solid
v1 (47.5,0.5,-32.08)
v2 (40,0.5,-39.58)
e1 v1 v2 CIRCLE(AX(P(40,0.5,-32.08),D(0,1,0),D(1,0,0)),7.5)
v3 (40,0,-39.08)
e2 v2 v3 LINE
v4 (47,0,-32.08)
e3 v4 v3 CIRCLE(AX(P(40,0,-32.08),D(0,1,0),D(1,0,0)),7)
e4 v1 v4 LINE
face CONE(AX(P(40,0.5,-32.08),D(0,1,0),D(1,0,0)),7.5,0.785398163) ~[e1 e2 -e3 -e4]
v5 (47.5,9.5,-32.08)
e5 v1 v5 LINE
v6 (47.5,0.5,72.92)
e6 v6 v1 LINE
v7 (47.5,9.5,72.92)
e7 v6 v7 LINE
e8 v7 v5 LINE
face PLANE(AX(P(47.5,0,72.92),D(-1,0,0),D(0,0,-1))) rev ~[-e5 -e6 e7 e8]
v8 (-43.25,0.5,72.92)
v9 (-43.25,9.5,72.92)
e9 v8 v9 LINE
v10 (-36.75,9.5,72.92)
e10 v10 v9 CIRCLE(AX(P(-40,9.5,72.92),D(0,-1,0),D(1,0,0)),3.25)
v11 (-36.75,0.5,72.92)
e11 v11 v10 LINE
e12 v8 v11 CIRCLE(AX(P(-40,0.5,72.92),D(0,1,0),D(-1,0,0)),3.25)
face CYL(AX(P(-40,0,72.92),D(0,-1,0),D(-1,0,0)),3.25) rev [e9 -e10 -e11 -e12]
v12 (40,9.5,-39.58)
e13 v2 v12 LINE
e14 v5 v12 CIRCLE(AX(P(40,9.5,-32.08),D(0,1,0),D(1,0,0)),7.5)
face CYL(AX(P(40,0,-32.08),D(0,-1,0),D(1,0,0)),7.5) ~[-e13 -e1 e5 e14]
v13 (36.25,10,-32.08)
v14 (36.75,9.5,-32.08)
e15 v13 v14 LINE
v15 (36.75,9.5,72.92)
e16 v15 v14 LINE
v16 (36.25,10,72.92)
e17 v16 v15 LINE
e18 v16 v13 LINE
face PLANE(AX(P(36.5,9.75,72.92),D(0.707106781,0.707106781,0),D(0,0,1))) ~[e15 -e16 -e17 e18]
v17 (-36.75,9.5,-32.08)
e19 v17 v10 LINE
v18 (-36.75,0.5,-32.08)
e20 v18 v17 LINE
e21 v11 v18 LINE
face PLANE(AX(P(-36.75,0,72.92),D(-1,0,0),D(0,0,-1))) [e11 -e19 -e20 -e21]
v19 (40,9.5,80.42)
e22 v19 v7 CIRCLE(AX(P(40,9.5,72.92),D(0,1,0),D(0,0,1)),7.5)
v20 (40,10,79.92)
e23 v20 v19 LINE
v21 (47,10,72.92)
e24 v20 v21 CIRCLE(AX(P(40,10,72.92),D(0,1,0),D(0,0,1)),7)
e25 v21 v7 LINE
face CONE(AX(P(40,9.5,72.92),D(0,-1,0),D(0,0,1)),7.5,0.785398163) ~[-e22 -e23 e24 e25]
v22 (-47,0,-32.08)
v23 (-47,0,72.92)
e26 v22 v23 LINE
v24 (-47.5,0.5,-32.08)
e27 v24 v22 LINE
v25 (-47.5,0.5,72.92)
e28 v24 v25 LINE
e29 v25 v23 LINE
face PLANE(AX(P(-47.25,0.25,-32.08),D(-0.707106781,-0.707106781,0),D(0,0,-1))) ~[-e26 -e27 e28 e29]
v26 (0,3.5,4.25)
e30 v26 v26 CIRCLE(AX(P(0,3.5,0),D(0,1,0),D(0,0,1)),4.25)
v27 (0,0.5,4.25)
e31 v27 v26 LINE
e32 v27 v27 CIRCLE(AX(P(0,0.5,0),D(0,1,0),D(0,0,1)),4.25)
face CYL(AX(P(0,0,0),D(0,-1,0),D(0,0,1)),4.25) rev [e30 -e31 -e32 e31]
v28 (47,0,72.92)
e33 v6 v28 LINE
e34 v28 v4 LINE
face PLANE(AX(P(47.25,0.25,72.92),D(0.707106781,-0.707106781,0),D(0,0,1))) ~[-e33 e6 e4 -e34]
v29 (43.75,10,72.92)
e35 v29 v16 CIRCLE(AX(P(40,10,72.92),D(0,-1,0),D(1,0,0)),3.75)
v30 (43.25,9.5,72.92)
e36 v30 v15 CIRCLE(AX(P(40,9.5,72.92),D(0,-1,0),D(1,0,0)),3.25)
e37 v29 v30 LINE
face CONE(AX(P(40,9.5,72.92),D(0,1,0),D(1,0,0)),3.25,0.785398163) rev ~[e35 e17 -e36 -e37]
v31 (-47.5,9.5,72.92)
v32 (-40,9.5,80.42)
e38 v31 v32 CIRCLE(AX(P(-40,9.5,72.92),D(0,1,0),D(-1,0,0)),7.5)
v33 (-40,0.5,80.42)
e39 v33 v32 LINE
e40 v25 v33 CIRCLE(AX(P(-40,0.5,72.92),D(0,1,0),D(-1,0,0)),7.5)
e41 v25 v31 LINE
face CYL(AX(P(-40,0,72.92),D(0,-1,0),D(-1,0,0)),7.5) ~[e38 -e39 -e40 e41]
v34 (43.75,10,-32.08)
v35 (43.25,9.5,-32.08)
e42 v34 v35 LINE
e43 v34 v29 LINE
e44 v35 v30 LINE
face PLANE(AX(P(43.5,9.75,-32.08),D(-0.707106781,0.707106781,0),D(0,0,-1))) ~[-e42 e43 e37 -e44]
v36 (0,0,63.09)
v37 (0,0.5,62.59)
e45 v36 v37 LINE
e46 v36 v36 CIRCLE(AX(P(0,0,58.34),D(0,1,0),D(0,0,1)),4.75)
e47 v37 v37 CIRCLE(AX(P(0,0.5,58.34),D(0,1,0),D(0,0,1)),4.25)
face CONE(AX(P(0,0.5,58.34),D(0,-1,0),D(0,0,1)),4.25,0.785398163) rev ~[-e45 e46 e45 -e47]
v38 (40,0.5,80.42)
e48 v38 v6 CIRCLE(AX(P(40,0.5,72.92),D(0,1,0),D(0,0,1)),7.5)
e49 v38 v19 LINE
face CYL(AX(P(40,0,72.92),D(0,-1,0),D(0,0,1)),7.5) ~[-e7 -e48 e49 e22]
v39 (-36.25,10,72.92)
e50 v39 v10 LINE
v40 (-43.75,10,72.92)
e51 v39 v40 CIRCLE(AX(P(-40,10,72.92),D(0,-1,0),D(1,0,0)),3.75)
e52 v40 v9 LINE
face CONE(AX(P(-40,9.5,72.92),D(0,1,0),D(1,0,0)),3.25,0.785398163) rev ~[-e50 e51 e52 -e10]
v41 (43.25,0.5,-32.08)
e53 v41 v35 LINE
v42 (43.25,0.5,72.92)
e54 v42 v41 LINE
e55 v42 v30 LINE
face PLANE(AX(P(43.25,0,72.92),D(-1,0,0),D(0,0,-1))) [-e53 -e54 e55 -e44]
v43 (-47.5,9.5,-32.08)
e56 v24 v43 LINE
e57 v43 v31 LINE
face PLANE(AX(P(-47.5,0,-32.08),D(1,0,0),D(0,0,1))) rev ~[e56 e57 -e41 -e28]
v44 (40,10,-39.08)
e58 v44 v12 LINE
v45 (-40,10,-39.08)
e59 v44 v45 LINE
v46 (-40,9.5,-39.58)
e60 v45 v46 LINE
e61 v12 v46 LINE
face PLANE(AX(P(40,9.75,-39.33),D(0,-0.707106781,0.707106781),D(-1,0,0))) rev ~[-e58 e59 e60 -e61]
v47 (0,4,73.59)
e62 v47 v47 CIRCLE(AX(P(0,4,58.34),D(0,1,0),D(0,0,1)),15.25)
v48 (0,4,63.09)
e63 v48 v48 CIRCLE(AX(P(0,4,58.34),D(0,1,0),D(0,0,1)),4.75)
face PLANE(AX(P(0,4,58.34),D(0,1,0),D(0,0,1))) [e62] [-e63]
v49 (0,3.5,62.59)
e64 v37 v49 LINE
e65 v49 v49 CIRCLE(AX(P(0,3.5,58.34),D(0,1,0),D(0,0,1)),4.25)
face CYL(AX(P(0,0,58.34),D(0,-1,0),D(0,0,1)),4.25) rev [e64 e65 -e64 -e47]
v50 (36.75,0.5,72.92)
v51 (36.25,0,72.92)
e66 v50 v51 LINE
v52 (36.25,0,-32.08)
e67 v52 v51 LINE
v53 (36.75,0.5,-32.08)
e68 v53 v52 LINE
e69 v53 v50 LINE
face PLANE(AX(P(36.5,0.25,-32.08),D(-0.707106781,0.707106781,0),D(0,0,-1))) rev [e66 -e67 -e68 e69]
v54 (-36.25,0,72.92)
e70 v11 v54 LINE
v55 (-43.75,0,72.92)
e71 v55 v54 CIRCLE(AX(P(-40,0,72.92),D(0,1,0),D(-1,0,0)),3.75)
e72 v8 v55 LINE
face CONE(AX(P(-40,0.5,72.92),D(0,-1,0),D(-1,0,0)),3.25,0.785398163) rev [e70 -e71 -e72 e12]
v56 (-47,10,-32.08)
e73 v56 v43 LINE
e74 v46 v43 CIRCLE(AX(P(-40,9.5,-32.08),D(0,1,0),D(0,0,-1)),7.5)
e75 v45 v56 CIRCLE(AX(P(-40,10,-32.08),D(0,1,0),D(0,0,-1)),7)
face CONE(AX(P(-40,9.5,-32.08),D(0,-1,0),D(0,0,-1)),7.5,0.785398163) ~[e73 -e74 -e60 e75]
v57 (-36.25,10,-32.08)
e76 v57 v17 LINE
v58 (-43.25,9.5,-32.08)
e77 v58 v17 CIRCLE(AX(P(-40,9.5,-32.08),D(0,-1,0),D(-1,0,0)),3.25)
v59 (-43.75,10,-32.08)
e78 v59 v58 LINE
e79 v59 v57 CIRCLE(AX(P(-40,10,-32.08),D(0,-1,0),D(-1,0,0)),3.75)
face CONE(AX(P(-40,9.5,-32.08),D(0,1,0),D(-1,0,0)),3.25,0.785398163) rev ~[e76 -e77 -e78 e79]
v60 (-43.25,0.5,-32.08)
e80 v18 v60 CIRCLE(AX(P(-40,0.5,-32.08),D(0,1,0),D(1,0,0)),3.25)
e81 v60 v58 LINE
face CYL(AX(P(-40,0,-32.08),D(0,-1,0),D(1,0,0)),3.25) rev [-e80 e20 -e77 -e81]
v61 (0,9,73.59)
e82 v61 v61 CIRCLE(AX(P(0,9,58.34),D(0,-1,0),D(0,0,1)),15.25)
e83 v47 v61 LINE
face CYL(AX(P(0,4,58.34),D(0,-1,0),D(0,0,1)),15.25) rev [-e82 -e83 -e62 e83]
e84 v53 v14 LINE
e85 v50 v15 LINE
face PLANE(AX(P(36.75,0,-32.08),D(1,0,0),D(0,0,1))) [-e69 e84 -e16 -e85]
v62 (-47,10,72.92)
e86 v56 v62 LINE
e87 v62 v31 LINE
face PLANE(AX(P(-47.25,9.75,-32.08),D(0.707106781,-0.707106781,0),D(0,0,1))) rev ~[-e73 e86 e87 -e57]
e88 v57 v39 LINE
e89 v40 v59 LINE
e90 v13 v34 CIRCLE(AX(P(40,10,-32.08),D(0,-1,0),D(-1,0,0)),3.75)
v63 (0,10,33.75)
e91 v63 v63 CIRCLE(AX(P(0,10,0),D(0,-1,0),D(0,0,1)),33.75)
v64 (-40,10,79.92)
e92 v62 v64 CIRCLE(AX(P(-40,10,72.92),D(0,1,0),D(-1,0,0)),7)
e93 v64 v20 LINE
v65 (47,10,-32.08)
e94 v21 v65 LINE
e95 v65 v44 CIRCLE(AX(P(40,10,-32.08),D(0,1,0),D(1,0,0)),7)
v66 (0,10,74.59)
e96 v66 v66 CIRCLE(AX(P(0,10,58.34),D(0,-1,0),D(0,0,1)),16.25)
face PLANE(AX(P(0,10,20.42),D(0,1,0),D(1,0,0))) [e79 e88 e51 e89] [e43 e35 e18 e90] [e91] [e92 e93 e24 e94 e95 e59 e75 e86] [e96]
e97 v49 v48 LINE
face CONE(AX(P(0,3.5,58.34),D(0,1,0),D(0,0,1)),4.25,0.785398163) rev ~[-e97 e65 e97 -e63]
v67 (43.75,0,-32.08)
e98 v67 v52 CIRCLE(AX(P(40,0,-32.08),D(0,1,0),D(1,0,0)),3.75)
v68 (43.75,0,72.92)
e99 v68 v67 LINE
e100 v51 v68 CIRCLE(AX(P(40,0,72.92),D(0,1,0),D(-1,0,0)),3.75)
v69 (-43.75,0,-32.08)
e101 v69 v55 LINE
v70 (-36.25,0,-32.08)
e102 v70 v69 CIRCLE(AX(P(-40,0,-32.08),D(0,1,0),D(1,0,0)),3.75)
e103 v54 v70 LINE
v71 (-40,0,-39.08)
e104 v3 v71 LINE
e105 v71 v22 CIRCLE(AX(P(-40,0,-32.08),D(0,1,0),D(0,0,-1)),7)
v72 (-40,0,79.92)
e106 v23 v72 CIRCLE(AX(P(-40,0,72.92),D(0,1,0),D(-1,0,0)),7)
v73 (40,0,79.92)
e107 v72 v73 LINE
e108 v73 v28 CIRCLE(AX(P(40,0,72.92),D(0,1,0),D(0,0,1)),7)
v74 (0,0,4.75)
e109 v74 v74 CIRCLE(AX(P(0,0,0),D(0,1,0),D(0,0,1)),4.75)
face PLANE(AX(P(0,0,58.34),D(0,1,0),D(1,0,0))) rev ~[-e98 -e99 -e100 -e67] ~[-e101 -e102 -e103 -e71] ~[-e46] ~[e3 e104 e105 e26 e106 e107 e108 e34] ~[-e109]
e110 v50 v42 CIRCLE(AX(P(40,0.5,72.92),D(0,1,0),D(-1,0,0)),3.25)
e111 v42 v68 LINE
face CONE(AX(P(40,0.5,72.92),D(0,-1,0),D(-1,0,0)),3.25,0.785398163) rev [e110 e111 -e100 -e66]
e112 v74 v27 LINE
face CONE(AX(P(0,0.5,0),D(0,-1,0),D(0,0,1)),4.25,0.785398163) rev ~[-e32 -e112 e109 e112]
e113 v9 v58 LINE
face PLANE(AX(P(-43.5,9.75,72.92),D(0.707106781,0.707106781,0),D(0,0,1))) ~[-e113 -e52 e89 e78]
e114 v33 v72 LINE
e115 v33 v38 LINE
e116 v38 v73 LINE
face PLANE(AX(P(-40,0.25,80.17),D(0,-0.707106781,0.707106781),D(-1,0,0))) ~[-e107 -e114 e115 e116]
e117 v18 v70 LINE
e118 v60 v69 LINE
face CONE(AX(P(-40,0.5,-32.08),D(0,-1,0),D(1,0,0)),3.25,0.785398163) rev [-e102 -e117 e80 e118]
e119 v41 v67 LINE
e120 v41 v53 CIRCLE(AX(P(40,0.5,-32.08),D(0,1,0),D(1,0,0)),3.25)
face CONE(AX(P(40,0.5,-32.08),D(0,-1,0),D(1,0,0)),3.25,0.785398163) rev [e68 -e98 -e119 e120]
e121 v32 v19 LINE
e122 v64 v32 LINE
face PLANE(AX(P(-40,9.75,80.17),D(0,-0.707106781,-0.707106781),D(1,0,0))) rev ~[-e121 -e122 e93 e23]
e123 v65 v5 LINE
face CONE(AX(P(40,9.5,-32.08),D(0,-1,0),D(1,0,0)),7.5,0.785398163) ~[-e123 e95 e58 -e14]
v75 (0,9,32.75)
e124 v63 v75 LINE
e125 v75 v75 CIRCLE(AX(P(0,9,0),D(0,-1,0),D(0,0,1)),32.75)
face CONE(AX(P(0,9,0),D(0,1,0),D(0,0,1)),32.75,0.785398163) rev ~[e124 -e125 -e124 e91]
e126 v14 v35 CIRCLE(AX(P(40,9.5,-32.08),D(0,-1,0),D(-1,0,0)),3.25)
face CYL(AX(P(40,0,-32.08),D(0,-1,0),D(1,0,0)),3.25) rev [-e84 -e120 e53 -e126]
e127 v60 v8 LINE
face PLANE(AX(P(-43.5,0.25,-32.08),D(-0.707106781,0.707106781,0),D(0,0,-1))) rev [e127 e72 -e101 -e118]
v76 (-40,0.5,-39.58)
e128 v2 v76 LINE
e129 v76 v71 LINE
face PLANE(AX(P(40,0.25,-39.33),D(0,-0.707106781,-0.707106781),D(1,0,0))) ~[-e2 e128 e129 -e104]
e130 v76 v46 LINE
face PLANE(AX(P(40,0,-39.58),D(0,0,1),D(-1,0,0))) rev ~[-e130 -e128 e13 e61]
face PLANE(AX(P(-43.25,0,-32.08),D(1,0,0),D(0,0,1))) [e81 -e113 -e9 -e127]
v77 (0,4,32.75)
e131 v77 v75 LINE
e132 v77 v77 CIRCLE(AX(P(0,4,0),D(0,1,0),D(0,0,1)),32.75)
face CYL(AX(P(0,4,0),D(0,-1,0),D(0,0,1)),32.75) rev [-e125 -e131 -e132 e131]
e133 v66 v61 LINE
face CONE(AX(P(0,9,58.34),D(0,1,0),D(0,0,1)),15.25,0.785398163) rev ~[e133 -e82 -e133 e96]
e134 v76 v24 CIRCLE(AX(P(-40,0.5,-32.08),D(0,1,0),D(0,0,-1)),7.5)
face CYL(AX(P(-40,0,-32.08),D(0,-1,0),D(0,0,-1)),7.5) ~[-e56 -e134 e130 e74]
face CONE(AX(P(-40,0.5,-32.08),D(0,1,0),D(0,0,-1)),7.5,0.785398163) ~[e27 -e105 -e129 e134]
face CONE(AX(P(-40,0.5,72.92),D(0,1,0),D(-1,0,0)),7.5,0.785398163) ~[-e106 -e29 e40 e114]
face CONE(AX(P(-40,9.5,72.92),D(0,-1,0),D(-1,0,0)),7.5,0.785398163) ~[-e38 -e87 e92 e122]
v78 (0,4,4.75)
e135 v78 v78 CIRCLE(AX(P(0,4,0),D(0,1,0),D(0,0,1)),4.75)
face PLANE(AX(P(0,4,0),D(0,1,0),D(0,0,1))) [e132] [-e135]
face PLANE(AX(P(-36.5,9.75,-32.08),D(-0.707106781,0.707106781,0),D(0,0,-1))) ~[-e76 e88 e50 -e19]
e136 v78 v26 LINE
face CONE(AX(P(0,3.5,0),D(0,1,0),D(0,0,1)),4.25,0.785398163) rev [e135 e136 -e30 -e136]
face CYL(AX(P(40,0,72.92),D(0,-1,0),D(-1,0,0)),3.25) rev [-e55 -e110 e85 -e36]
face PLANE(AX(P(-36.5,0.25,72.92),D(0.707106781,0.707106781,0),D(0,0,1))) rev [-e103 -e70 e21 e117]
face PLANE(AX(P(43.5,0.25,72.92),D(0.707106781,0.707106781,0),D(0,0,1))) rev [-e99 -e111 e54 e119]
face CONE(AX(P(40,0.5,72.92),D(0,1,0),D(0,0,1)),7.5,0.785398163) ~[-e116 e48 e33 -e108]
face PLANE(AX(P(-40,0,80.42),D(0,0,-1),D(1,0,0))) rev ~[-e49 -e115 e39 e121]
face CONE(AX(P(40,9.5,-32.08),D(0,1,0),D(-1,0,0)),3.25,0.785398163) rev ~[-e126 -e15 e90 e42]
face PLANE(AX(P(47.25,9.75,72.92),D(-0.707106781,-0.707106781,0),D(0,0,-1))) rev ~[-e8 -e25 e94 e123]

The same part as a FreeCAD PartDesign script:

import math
import FreeCAD as App
import Part
import Sketcher
Q = App.Units.Quantity


def edges_at(feature, points):
    """Names of the edges that pass closest to the given points."""
    edges = feature.Shape.Edges
    near = lambda p: min(range(len(edges)), key=lambda i: edges[i].distToShape(Part.Vertex(*p))[0])
    return sorted({f"Edge{near(p) + 1}" for p in points})

doc = App.newDocument("Part")
params = doc.addObject("Spreadsheet::Sheet", "Params")
for row, (alias, value) in enumerate([
    ("sketch1_radius", "7.5 mm"),
    ("sketch1_width", "80 mm"),
    ("sketch1_height", "105 mm"),
    ("pad1_length", "10 mm"),
    ("sketch2_diameter", "8.5 mm"),
    ("sketch2_height", "105 mm"),
    ("sketch2_radius", "3.25 mm"),
    ("sketch3_diameter", "65.5 mm"),
    ("sketch3_diameter2", "8.5 mm"),
    ("sketch3_diameter3", "30.5 mm"),
    ("pocket2_length", "90.93416 mm"),
    ("chamfer_size", "1 mm"),
    ("chamfer2_size", "0.5 mm"),
], start=1):
    params.set(f"A{row}", alias)
    params.set(f"B{row}", "=" + value)
    params.setAlias(f"B{row}", alias)

body = doc.addObject("PartDesign::Body", "Body")

sketch1 = body.newObject("Sketcher::SketchObject", "Sketch")
sketch1.AttachmentSupport = (doc.getObject("XZ_Plane"), [""])
sketch1.MapMode = "FlatFace"
sketch1.addGeometry([
    Part.LineSegment(App.Vector(-40, 80, 0), App.Vector(40, 80, 0)),
    Part.ArcOfCircle(Part.Circle(App.Vector(40, 73, 0), App.Vector(0, 0, 1), 8), math.radians(0), math.radians(90)),
    Part.LineSegment(App.Vector(48, 73, 0), App.Vector(48, -32, 0)),
    Part.ArcOfCircle(Part.Circle(App.Vector(40, -32, 0), App.Vector(0, 0, 1), 8), math.radians(-90), math.radians(0)),
    Part.LineSegment(App.Vector(40, -40, 0), App.Vector(-40, -40, 0)),
    Part.ArcOfCircle(Part.Circle(App.Vector(-40, -32, 0), App.Vector(0, 0, 1), 8), math.radians(180), math.radians(270)),
    Part.LineSegment(App.Vector(-48, -32, 0), App.Vector(-48, 73, 0)),
    Part.ArcOfCircle(Part.Circle(App.Vector(-40, 73, 0), App.Vector(0, 0, 1), 8), math.radians(90), math.radians(180)),
], False)
sketch1.addConstraint([
    Sketcher.Constraint("Tangent", 0, 2, 1, 2),
    Sketcher.Constraint("Tangent", 1, 1, 2, 1),
    Sketcher.Constraint("Tangent", 2, 2, 3, 2),
    Sketcher.Constraint("Tangent", 3, 1, 4, 1),
    Sketcher.Constraint("Tangent", 4, 2, 5, 2),
    Sketcher.Constraint("Tangent", 5, 1, 6, 1),
    Sketcher.Constraint("Tangent", 6, 2, 7, 2),
    Sketcher.Constraint("Tangent", 7, 1, 0, 1),
    Sketcher.Constraint("Horizontal", 0),
    Sketcher.Constraint("Vertical", 2),
    Sketcher.Constraint("Horizontal", 4),
    Sketcher.Constraint("Vertical", 6),
    Sketcher.Constraint("Equal", 1, 3),
    Sketcher.Constraint("Equal", 3, 5),
    Sketcher.Constraint("Equal", 5, 7),
    Sketcher.Constraint("Radius", 1, Q("7.5 mm")),
    Sketcher.Constraint("DistanceX", 0, 1, 0, 2, Q("80 mm")),
    Sketcher.Constraint("DistanceY", 2, 2, 2, 1, Q("105 mm")),
    Sketcher.Constraint("DistanceX", -1, 1, 1, 3, Q("40 mm")),
    Sketcher.Constraint("DistanceY", -1, 1, 1, 3, Q("72.92 mm")),
])
sketch1.setExpression("Constraints[15]", "Params.sketch1_radius")
sketch1.setExpression("Constraints[16]", "Params.sketch1_width")
sketch1.setExpression("Constraints[17]", "Params.sketch1_height")
pad1 = body.newObject("PartDesign::Pad", "Pad")
pad1.Profile = sketch1
pad1.setExpression("Length", "Params.pad1_length")
pad1.Reversed = True

sketch2 = body.newObject("Sketcher::SketchObject", "Sketch001")
sketch2.AttachmentSupport = (doc.getObject("XZ_Plane"), [""])
sketch2.MapMode = "FlatFace"
sketch2.addGeometry([
    Part.LineSegment(App.Vector(36.8, -32.1, 0), App.Vector(36.8, 72.9, 0)),
    Part.ArcOfCircle(Part.Circle(App.Vector(40, 72.9, 0), App.Vector(0, 0, 1), 3.2), math.radians(0), math.radians(180)),
    Part.LineSegment(App.Vector(43.2, 72.9, 0), App.Vector(43.2, -32.1, 0)),
    Part.ArcOfCircle(Part.Circle(App.Vector(40, -32.1, 0), App.Vector(0, 0, 1), 3.2), math.radians(180), math.radians(360)),
    Part.Circle(App.Vector(0, 0, 0), App.Vector(0, 0, 1), 4.2),
    Part.Circle(App.Vector(0, 58.3, 0), App.Vector(0, 0, 1), 4.2),
    Part.LineSegment(App.Vector(-43.2, -32.1, 0), App.Vector(-43.2, 72.9, 0)),
    Part.ArcOfCircle(Part.Circle(App.Vector(-40, 72.9, 0), App.Vector(0, 0, 1), 3.2), math.radians(0), math.radians(180)),
    Part.LineSegment(App.Vector(-36.8, 72.9, 0), App.Vector(-36.8, -32.1, 0)),
    Part.ArcOfCircle(Part.Circle(App.Vector(-40, -32.1, 0), App.Vector(0, 0, 1), 3.2), math.radians(180), math.radians(360)),
], False)
sketch2.addConstraint([
    Sketcher.Constraint("Tangent", 0, 2, 1, 2),
    Sketcher.Constraint("Tangent", 1, 1, 2, 1),
    Sketcher.Constraint("Tangent", 2, 2, 3, 2),
    Sketcher.Constraint("Tangent", 3, 1, 0, 1),
    Sketcher.Constraint("Tangent", 6, 2, 7, 2),
    Sketcher.Constraint("Tangent", 7, 1, 8, 1),
    Sketcher.Constraint("Tangent", 8, 2, 9, 2),
    Sketcher.Constraint("Tangent", 9, 1, 6, 1),
    Sketcher.Constraint("Vertical", 0),
    Sketcher.Constraint("Vertical", 2),
    Sketcher.Constraint("Vertical", 6),
    Sketcher.Constraint("Vertical", 8),
    Sketcher.Constraint("Coincident", 4, 3, -1, 1),
    Sketcher.Constraint("Equal", 4, 5),
    Sketcher.Constraint("Equal", 3, 7),
    Sketcher.Constraint("Symmetric", 1, 3, 7, 3, -2),
    Sketcher.Constraint("PointOnObject", 5, 3, -2),
    Sketcher.Constraint("Horizontal", 3, 3, 9, 3),
    Sketcher.Constraint("Diameter", 4, Q("8.5 mm")),
    Sketcher.Constraint("DistanceY", 0, 1, 0, 2, Q("105 mm")),
    Sketcher.Constraint("Radius", 1, Q("3.25 mm")),
    Sketcher.Constraint("DistanceX", -1, 1, 1, 3, Q("40 mm")),
    Sketcher.Constraint("DistanceY", -1, 1, 1, 3, Q("72.92 mm")),
    Sketcher.Constraint("DistanceY", -1, 1, 5, 3, Q("58.34 mm")),
])
sketch2.setExpression("Constraints[18]", "Params.sketch2_diameter")
sketch2.setExpression("Constraints[19]", "Params.sketch2_height")
sketch2.setExpression("Constraints[20]", "Params.sketch2_radius")
pocket1 = body.newObject("PartDesign::Pocket", "Pocket")
pocket1.Profile = sketch2
pocket1.Type = "ThroughAll"

sketch3 = body.newObject("Sketcher::SketchObject", "Sketch002")
sketch3.AttachmentSupport = (doc.getObject("XZ_Plane"), [""])
sketch3.MapMode = "FlatFace"
sketch3.AttachmentOffset = App.Placement(App.Vector(0, 0, -4), App.Rotation())
sketch3.addGeometry([
    Part.Circle(App.Vector(0, 0, 0), App.Vector(0, 0, 1), 32.8),
    Part.Circle(App.Vector(0, 0, 0), App.Vector(0, 0, 1), 4.2),
    Part.Circle(App.Vector(0, 58.3, 0), App.Vector(0, 0, 1), 15.2),
    Part.Circle(App.Vector(0, 58.3, 0), App.Vector(0, 0, 1), 4.2),
], False)
sketch3.addConstraint([
    Sketcher.Constraint("Coincident", 0, 3, -1, 1),
    Sketcher.Constraint("Coincident", 1, 3, -1, 1),
    Sketcher.Constraint("Coincident", 3, 3, 2, 3),
    Sketcher.Constraint("Equal", 1, 3),
    Sketcher.Constraint("PointOnObject", 2, 3, -2),
    Sketcher.Constraint("Diameter", 0, Q("65.5 mm")),
    Sketcher.Constraint("Diameter", 1, Q("8.5 mm")),
    Sketcher.Constraint("Diameter", 2, Q("30.5 mm")),
    Sketcher.Constraint("DistanceY", -1, 1, 2, 3, Q("58.34 mm")),
])
sketch3.setExpression("Constraints[5]", "Params.sketch3_diameter")
sketch3.setExpression("Constraints[6]", "Params.sketch3_diameter2")
sketch3.setExpression("Constraints[7]", "Params.sketch3_diameter3")
pocket2 = body.newObject("PartDesign::Pocket", "Pocket001")
pocket2.Profile = sketch3
pocket2.setExpression("Length", "Params.pocket2_length")
doc.recompute()

chamfer = body.newObject("PartDesign::Chamfer", "Chamfer")
chamfer.Base = (pocket2, edges_at(pocket2, [(0, 10, -32.75), (0, 10, 43.09)]))
chamfer.setExpression("Size", "Params.chamfer_size")
doc.recompute()

chamfer2 = body.newObject("PartDesign::Chamfer", "Chamfer001")
chamfer2.Base = (chamfer, edges_at(chamfer, [
    (45.303, 10, 78.223),
    (-47.5, 0, 20.42),
    (-45.303, 0, -37.383),
    (0, 0, -39.58),
    (45.303, 0, -37.383),
    (47.5, 0, 20.42),
    (45.303, 0, 78.223),
    (0, 0, 80.42),
    (47.5, 10, 20.42),
    (45.303, 10, -37.383),
    (0, 10, -39.58),
    (-45.303, 10, -37.383),
    (-47.5, 10, 20.42),
    (36.75, 0, 20.42),
    (40, 0, 76.17),
    (43.25, 10, 20.42),
    (40, 0, -35.33),
    (36.75, 10, 20.42),
    (-45.303, 10, 78.223),
    (40, 10, 76.17),
    (40, 10, -35.33),
    (43.25, 0, 20.42),
    (0, 0, -4.25),
    (0, 0, 54.09),
    (-43.25, 0, 20.42),
    (-40, 0, 76.17),
    (-36.75, 10, 20.42),
    (-40, 0, -35.33),
    (-43.25, 10, 20.42),
    (-40, 10, 76.17),
    (-40, 10, -35.33),
    (0, 10, 80.42),
    (-36.75, 0, 20.42),
    (0, 4, -4.25),
    (0, 4, 54.09),
    (-45.303, 0, 78.223),
]))
chamfer2.setExpression("Size", "Params.chamfer2_size")

doc.recompute()
